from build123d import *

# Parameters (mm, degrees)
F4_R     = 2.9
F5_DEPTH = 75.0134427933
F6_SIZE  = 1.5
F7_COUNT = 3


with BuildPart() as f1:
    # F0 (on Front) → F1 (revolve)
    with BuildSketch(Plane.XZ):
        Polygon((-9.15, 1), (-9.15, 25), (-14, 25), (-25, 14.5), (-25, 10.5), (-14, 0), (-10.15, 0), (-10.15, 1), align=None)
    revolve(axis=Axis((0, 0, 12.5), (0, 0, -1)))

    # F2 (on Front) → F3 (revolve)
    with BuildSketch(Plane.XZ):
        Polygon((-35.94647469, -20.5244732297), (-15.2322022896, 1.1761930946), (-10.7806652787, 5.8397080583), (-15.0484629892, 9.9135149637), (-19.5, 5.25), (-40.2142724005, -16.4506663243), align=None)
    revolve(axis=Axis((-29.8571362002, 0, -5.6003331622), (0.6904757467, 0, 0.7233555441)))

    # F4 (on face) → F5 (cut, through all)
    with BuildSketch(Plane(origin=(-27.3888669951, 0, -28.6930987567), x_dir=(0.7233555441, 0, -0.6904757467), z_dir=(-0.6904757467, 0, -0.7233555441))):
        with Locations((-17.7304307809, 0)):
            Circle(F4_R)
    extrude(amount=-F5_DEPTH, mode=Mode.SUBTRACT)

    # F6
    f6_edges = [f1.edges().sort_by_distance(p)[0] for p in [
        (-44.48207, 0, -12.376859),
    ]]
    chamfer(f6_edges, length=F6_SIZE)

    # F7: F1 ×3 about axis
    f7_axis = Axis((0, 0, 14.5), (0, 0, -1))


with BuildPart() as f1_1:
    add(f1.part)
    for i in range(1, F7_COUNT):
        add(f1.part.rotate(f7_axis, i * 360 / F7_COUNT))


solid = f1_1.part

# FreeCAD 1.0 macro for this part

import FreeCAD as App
import Part
import Sketcher
from FreeCAD import Vector
Q = App.Units.Quantity


def edges_at(feature, points):
    """Names of the edges that pass closest to the given points."""
    edges = feature.Shape.Edges
    near = lambda p: min(range(len(edges)), key=lambda i: edges[i].distToShape(Part.Vertex(*p))[0])
    return sorted({f"Edge{near(p) + 1}" for p in points})


def add_polygon(sketch, points):
    """Adds a closed chain of lines whose ends are joined by coincident constraints."""
    first, n = sketch.GeometryCount, len(points)
    for a, b in zip(points, points[1:] + points[:1]):
        sketch.addGeometry(Part.LineSegment(App.Vector(*a, 0), App.Vector(*b, 0)), False)
    for i in range(n):
        sketch.addConstraint(Sketcher.Constraint("Coincident", first + i, 2, first + (i + 1) % n, 1))

doc = App.newDocument("Part")
body = doc.addObject("PartDesign::Body", "Body")

# Sketch on XZ plane
sketch1 = body.newObject("Sketcher::SketchObject", "Sketch")
sketch1.AttachmentSupport = (doc.getObject("XZ_Plane"), [""])
sketch1.MapMode = "FlatFace"
add_polygon(sketch1, [(-9.2, 1), (-9.2, 25), (-14, 25), (-25, 14.5), (-25, 10.5), (-14, 0), (-10.2, 0), (-10.2, 1)])  # lines 0-7
sketch1.addConstraint(Sketcher.Constraint("Vertical", 0))
sketch1.addConstraint(Sketcher.Constraint("Horizontal", 1))
sketch1.addConstraint(Sketcher.Constraint("Vertical", 3))
sketch1.addConstraint(Sketcher.Constraint("Horizontal", 5))
sketch1.addConstraint(Sketcher.Constraint("Vertical", 6))
sketch1.addConstraint(Sketcher.Constraint("Horizontal", 7))
sketch1.addConstraint(Sketcher.Constraint("PointOnObject", 4, 2, -1))
sketch1.addConstraint(Sketcher.Constraint("Vertical", 1, 2, 4, 2))
sketch1.addConstraint(Sketcher.Constraint("Equal", 7, 6))
sketch1.addConstraint(Sketcher.Constraint("Equal", 2, 4))
sketch1.addConstraint(Sketcher.Constraint("DistanceX", 7, 1, 7, 2, Q("1 mm")))
sketch1.addConstraint(Sketcher.Constraint("DistanceY", 0, 1, 0, 2, Q("24 mm")))
sketch1.addConstraint(Sketcher.Constraint("DistanceY", 3, 2, 3, 1, Q("4 mm")))
sketch1.addConstraint(Sketcher.Constraint("DistanceX", 1, 2, -1, 1, Q("14 mm")))
sketch1.addConstraint(Sketcher.Constraint("DistanceX", 2, 2, -1, 1, Q("25 mm")))
sketch1.addConstraint(Sketcher.Constraint("DistanceX", 1, 2, 1, 1, Q("4.85 mm")))
revolution = body.newObject("PartDesign::Revolution", "Revolution")
revolution.Profile = sketch1
revolution.ReferenceAxis = (sketch1, ["V_Axis"])
revolution.Angle = 360

# Sketch on XZ plane
sketch2 = body.newObject("Sketcher::SketchObject", "Sketch001")
sketch2.AttachmentSupport = (doc.getObject("XZ_Plane"), [""])
sketch2.MapMode = "FlatFace"
add_polygon(sketch2, [(-36, -21), (-15, 1), (-11, 6), (-15, 10), (-20, 5), (-40, -16)])  # lines 0-5
sketch2.addGeometry(Part.LineSegment(Vector(-40, -16, 0), Vector(-15, 10, 0)), True)  # axis
sketch2.addConstraint(Sketcher.Constraint("Coincident", 6, 1, 4, 2))
sketch2.addConstraint(Sketcher.Constraint("Coincident", 6, 2, 2, 2))
sketch2.addConstraint(Sketcher.Constraint("Parallel", 0, 1))
sketch2.addConstraint(Sketcher.Constraint("Perpendicular", 1, 2))
sketch2.addConstraint(Sketcher.Constraint("Perpendicular", 2, 3))
sketch2.addConstraint(Sketcher.Constraint("Parallel", 3, 4))
sketch2.addConstraint(Sketcher.Constraint("Perpendicular", 4, 5))
sketch2.addConstraint(Sketcher.Constraint("Equal", 1, 3))
sketch2.addConstraint(Sketcher.Constraint("Distance", 0, Q("30 mm")))
sketch2.addConstraint(Sketcher.Constraint("Distance", 2, Q("5.9 mm")))
sketch2.addConstraint(Sketcher.Constraint("DistanceX", 3, 2, -1, 1, Q("19.5 mm")))
sketch2.addConstraint(Sketcher.Constraint("DistanceY", -1, 1, 3, 2, Q("5.25 mm")))
sketch2.addConstraint(Sketcher.Constraint("DistanceY", -1, 1, 1, 2, Q("5.839708 mm")))
sketch2.addConstraint(Sketcher.Constraint("DistanceX", 0, 2, 2, 2, Q("0.183739 mm")))
revolution2 = body.newObject("PartDesign::Revolution", "Revolution001")
revolution2.Profile = sketch2
revolution2.ReferenceAxis = (sketch2, ["Axis0"])
revolution2.Angle = 360

# Sketch on an angled plane
sketch3 = body.newObject("Sketcher::SketchObject", "Sketch002")
sketch3.Placement = App.Placement(Vector(-27.388867, 0, -28.693099), App.Rotation(Vector(0.723355544, 0, -0.690475747), Vector(0, -1, 0), Vector(-0.690475747, 0, -0.723355544), "ZXY"))
sketch3.addGeometry(Part.Circle(Vector(-17.7, 0, 0), Vector(0, 0, 1), 2.9), False)
sketch3.addConstraint(Sketcher.Constraint("PointOnObject", 0, 3, -1))
sketch3.addConstraint(Sketcher.Constraint("Diameter", 0, Q("5.8 mm")))
sketch3.addConstraint(Sketcher.Constraint("DistanceX", 0, 3, -1, 1, Q("17.730431 mm")))
pocket1 = body.newObject("PartDesign::Pocket", "Pocket")
pocket1.Profile = sketch3
pocket1.Type = "ThroughAll"
doc.recompute()

chamfer = body.newObject("PartDesign::Chamfer", "Chamfer")
chamfer.Base = (pocket1, edges_at(pocket1, [(-44.482, 0, -12.377)]))
chamfer.Size = 1.5
body2 = doc.addObject("PartDesign::Body", "Body001")
doc.recompute()

body2.BaseFeature = body
doc.recompute()

body3 = doc.addObject("PartDesign::Body", "Body002")
body3.BaseFeature = body
body3.Placement = App.Placement(Vector(0, 0, 0), App.Rotation(Vector(0, 0, -1), 120))
boolean = body2.newObject("PartDesign::Boolean", "Boolean")
boolean.Type = "Fuse"
boolean.addObjects([body3])
doc.recompute()

body.Placement = App.Placement(Vector(0, 0, 0), App.Rotation(Vector(0, 0, -1), 240))
boolean2 = body2.newObject("PartDesign::Boolean", "Boolean001")
boolean2.Type = "Fuse"
boolean2.addObjects([body])

doc.recompute()
